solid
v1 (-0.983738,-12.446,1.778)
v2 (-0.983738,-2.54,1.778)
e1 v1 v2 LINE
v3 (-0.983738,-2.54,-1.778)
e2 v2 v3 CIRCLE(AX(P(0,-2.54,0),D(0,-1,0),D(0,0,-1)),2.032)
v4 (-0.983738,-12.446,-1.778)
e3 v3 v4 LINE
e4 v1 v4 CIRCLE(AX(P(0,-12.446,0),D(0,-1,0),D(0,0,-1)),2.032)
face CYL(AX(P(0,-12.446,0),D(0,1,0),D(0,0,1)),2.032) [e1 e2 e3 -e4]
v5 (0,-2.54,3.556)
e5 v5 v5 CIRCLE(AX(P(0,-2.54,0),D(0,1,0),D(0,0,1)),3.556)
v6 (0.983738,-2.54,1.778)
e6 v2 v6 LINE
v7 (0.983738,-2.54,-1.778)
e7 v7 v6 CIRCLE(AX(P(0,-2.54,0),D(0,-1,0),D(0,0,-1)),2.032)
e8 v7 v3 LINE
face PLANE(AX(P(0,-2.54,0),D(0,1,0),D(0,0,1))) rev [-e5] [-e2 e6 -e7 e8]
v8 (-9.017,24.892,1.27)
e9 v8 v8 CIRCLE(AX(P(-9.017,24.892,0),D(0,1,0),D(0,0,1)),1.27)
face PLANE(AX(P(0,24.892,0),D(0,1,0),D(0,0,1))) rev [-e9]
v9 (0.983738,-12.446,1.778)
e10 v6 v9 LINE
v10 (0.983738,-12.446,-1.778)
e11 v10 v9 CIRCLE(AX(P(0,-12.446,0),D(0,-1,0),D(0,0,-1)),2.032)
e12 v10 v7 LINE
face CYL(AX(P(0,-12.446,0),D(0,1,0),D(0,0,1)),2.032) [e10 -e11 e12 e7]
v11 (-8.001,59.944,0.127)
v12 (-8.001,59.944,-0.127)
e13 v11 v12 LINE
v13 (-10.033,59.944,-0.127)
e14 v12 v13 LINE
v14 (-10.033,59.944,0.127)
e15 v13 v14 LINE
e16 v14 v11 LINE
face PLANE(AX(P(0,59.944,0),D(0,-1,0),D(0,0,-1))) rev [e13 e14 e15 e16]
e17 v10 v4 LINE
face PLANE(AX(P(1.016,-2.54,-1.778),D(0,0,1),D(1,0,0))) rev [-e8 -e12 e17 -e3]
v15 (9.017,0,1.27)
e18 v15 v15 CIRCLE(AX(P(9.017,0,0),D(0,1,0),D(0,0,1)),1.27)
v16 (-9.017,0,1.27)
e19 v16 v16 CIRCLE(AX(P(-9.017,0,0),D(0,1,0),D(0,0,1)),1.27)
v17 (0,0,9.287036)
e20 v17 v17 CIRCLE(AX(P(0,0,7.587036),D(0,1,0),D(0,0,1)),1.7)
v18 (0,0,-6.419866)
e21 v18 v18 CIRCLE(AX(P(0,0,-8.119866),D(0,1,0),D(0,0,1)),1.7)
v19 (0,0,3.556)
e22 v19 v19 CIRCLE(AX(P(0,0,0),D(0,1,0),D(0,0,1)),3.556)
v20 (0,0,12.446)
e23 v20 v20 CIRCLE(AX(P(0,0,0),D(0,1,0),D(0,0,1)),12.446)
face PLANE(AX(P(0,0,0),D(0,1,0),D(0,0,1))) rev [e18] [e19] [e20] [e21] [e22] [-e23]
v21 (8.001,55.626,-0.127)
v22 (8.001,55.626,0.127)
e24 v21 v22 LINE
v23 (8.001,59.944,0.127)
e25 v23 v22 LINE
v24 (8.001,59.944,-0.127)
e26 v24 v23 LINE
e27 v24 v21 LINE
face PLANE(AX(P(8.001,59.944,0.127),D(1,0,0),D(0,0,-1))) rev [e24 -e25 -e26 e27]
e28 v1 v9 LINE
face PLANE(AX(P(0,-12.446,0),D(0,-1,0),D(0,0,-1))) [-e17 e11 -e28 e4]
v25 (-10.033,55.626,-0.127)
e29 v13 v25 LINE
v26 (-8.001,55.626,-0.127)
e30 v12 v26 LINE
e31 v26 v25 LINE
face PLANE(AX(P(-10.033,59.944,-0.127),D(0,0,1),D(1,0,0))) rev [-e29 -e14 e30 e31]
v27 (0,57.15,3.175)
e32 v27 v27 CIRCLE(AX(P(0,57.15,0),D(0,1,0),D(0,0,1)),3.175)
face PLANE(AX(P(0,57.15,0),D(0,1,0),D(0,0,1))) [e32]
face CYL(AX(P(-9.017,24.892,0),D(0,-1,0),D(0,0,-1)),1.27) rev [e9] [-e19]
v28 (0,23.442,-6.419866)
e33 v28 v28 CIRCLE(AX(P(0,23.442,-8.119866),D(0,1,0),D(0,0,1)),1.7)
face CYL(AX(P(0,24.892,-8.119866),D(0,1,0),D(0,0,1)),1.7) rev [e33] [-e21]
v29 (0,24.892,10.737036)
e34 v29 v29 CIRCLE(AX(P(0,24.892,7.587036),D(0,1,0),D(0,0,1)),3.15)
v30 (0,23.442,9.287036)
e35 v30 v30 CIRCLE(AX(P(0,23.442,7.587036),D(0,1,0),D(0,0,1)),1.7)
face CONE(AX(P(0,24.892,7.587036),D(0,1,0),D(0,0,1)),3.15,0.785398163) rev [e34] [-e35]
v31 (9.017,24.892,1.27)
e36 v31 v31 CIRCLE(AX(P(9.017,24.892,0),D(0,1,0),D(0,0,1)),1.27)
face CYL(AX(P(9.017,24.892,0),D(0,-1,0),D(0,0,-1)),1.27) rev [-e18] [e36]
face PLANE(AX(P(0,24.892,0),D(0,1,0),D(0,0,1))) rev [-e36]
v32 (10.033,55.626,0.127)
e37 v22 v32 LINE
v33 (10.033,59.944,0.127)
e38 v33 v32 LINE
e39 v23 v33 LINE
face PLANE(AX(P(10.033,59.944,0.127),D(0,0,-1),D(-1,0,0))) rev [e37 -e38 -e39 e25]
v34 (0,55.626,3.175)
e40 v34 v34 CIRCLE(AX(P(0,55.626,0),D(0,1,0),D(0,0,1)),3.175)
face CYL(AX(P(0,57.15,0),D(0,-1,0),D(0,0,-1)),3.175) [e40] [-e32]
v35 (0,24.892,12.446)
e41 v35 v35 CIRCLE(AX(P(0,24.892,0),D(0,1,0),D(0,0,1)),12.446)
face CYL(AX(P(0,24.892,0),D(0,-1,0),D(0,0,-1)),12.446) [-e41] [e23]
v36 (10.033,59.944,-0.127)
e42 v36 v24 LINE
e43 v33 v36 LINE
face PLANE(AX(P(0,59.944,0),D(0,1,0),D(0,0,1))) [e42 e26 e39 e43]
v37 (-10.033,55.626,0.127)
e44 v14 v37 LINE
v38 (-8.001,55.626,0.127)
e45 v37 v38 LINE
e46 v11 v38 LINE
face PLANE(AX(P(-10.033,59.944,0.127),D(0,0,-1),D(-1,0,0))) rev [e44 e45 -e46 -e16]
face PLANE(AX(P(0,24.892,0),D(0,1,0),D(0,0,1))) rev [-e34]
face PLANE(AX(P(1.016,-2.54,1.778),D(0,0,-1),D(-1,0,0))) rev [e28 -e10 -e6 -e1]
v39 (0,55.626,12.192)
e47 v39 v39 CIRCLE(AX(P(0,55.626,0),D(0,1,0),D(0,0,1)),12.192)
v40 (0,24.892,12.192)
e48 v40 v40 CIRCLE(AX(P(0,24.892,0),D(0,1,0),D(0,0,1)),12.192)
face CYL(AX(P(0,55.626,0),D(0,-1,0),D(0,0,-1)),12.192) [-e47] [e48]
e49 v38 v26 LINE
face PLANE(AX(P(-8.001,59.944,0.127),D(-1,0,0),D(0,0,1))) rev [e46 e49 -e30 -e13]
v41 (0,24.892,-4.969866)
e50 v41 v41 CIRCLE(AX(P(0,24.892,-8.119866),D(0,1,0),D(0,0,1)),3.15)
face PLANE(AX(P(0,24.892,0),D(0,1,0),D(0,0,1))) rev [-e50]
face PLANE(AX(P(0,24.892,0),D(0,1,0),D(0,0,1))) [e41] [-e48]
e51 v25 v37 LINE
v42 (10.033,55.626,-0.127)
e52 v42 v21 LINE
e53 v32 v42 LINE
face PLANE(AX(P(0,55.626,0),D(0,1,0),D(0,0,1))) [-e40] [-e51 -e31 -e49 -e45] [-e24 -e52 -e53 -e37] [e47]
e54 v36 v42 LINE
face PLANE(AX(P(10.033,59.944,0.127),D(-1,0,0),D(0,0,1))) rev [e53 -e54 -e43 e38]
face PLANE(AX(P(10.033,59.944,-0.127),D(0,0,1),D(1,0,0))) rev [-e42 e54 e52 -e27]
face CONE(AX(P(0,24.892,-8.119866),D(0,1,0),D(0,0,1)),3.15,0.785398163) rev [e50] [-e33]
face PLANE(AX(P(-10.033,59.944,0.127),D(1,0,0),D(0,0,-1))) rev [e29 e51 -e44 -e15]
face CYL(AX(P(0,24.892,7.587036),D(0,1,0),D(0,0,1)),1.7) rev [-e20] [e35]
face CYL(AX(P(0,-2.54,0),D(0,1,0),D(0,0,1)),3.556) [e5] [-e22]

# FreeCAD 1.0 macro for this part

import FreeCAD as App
import Part
import Sketcher

V = App.Vector
Q = App.Units.Quantity

doc = App.newDocument("Part")
body = doc.addObject("PartDesign::Body", "Body")

sketch1 = body.newObject("Sketcher::SketchObject", "Sketch")
sketch1.AttachmentSupport = (doc.getObject("XZ_Plane"), [""])
sketch1.MapMode = "FlatFace"
sketch1.addGeometry(Part.Circle(V(0, 0, 0), V(0, 0, 1), 12.446), False)
sketch1.addGeometry(Part.Circle(V(-9.017, 0, 0), V(0, 0, 1), 1.27), False)
sketch1.addGeometry(Part.Circle(V(9.017, 0, 0), V(0, 0, 1), 1.27), False)
sketch1.addConstraint(Sketcher.Constraint("Coincident", 0, 3, -1, 1))
sketch1.addConstraint(Sketcher.Constraint("Equal", 1, 2))
sketch1.addConstraint(Sketcher.Constraint("Symmetric", 1, 3, 2, 3, -1, 1))
sketch1.addConstraint(Sketcher.Constraint("PointOnObject", 1, 3, -1))
sketch1.addConstraint(Sketcher.Constraint("Diameter", 1, Q("0.1 in")))
sketch1.addConstraint(Sketcher.Constraint("Diameter", 0, Q("0.98 in")))
sketch1.addConstraint(Sketcher.Constraint("DistanceX", 1, 3, 2, 3, Q("0.71 in")))
pad1 = body.newObject("PartDesign::Pad", "Pad")
pad1.Profile = sketch1
pad1.Length = Q("0.98 in")
pad1.Reversed = True

sketch2 = body.newObject("Sketcher::SketchObject", "Sketch001")
sketch2.AttachmentSupport = (doc.getObject("XZ_Plane"), [""])
sketch2.MapMode = "FlatFace"
sketch2.AttachmentOffset = App.Placement(V(0, 0, -0.98 * 25.4), App.Rotation())
sketch2.addGeometry(Part.Circle(V(0, -8.119866, 0), V(0, 0, 1), 1.7), False)
sketch2.addGeometry(Part.Circle(V(0, 7.587036, 0), V(0, 0, 1), 1.7), False)
sketch2.addConstraint(Sketcher.Constraint("Equal", 0, 1))
sketch2.addConstraint(Sketcher.Constraint("PointOnObject", 0, 3, -2))
sketch2.addConstraint(Sketcher.Constraint("PointOnObject", 1, 3, -2))
sketch2.addConstraint(Sketcher.Constraint("Diameter", 0, Q("3.4 mm")))
sketch2.addConstraint(Sketcher.Constraint("DistanceY", 0, 3, -1, 1, Q("8.119866 mm")))
sketch2.addConstraint(Sketcher.Constraint("DistanceY", -1, 1, 1, 3, Q("7.587036 mm")))
doc.recompute()
hole = body.newObject("PartDesign::Hole", "Hole")
hole.Profile = sketch2
hole.ThreadType = "None"
hole.Diameter = 3.4
hole.DepthType = "ThroughAll"
hole.HoleCutType = "Countersink"
hole.HoleCutDiameter = 6.3
hole.HoleCutCountersinkAngle = 90
hole.Reversed = True

sketch3 = body.newObject("Sketcher::SketchObject", "Sketch002")
sketch3.AttachmentSupport = (doc.getObject("XZ_Plane"), [""])
sketch3.MapMode = "FlatFace"
sketch3.AttachmentOffset = App.Placement(V(0, 0, -0.98 * 25.4), App.Rotation())
sketch3.addGeometry(Part.Circle(V(0, 0, 0), V(0, 0, 1), 12.192), False)
sketch3.addConstraint(Sketcher.Constraint("Coincident", 0, 3, -1, 1))
sketch3.addConstraint(Sketcher.Constraint("Diameter", 0, Q("0.96 in")))
pad2 = body.newObject("PartDesign::Pad", "Pad001")
pad2.Profile = sketch3
pad2.Length = Q("1.21 in")
pad2.Reversed = True

sketch4 = body.newObject("Sketcher::SketchObject", "Sketch003")
sketch4.AttachmentSupport = (doc.getObject("XZ_Plane"), [""])
sketch4.MapMode = "FlatFace"
sketch4.addGeometry(Part.Circle(V(0, 0, 0), V(0, 0, 1), 3.556), False)
sketch4.addConstraint(Sketcher.Constraint("Coincident", 0, 3, -1, 1))
sketch4.addConstraint(Sketcher.Constraint("Diameter", 0, Q("0.28 in")))
pad3 = body.newObject("PartDesign::Pad", "Pad002")
pad3.Profile = sketch4
pad3.Length = Q("0.1 in")

sketch5 = body.newObject("Sketcher::SketchObject", "Sketch004")
sketch5.AttachmentSupport = (doc.getObject("XZ_Plane"), [""])
sketch5.MapMode = "FlatFace"
sketch5.AttachmentOffset = App.Placement(V(0, 0, 0.1 * 25.4), App.Rotation())
sketch5.addGeometry(Part.Circle(V(0, 0, 0), V(0, 0, 1), 2.032), False)
sketch5.addConstraint(Sketcher.Constraint("Coincident", 0, 3, -1, 1))
sketch5.addConstraint(Sketcher.Constraint("Diameter", 0, Q("0.16 in")))
pad4 = body.newObject("PartDesign::Pad", "Pad003")
pad4.Profile = sketch5
pad4.Length = Q("0.39 in")

sketch6 = body.newObject("Sketcher::SketchObject", "Sketch005")
sketch6.AttachmentSupport = (doc.getObject("XZ_Plane"), [""])
sketch6.MapMode = "FlatFace"
sketch6.AttachmentOffset = App.Placement(V(0, 0, 0.49 * 25.4), App.Rotation())
sketch6.addGeometry(Part.LineSegment(V(1.016, 1.778, 0), V(1.016, 2.032, 0)), False)
sketch6.addGeometry(Part.LineSegment(V(1.016, 2.032, 0), V(-1.016, 2.032, 0)), False)
sketch6.addGeometry(Part.LineSegment(V(-1.016, 2.032, 0), V(-1.016, 1.778, 0)), False)
sketch6.addGeometry(Part.LineSegment(V(-1.016, 1.778, 0), V(1.016, 1.778, 0)), False)
sketch6.addGeometry(Part.LineSegment(V(1.016, -2.032, 0), V(1.016, -1.778, 0)), False)
sketch6.addGeometry(Part.LineSegment(V(1.016, -1.778, 0), V(-1.016, -1.778, 0)), False)
sketch6.addGeometry(Part.LineSegment(V(-1.016, -1.778, 0), V(-1.016, -2.032, 0)), False)
sketch6.addGeometry(Part.LineSegment(V(-1.016, -2.032, 0), V(1.016, -2.032, 0)), False)
sketch6.addConstraint(Sketcher.Constraint("Coincident", 0, 2, 1, 1))
sketch6.addConstraint(Sketcher.Constraint("Coincident", 1, 2, 2, 1))
sketch6.addConstraint(Sketcher.Constraint("Coincident", 2, 2, 3, 1))
sketch6.addConstraint(Sketcher.Constraint("Coincident", 3, 2, 0, 1))
sketch6.addConstraint(Sketcher.Constraint("Coincident", 4, 2, 5, 1))
sketch6.addConstraint(Sketcher.Constraint("Coincident", 5, 2, 6, 1))
sketch6.addConstraint(Sketcher.Constraint("Coincident", 6, 2, 7, 1))
sketch6.addConstraint(Sketcher.Constraint("Coincident", 7, 2, 4, 1))
sketch6.addConstraint(Sketcher.Constraint("Vertical", 0))
sketch6.addConstraint(Sketcher.Constraint("Horizontal", 1))
sketch6.addConstraint(Sketcher.Constraint("Vertical", 2))
sketch6.addConstraint(Sketcher.Constraint("Horizontal", 3))
sketch6.addConstraint(Sketcher.Constraint("Vertical", 4))
sketch6.addConstraint(Sketcher.Constraint("Horizontal", 5))
sketch6.addConstraint(Sketcher.Constraint("Vertical", 6))
sketch6.addConstraint(Sketcher.Constraint("Horizontal", 7))
sketch6.addConstraint(Sketcher.Constraint("Symmetric", 2, 2, 4, 2, -1, 1))
sketch6.addConstraint(Sketcher.Constraint("Symmetric", 0, 2, 6, 2, -1, 1))
sketch6.addConstraint(Sketcher.Constraint("Vertical", 3, 2, 4, 2))
sketch6.addConstraint(Sketcher.Constraint("DistanceX", 1, 2, 1, 1, Q("0.08 in")))
sketch6.addConstraint(Sketcher.Constraint("DistanceY", 0, 1, 0, 2, Q("0.01 in")))
sketch6.addConstraint(Sketcher.Constraint("DistanceY", -1, 1, 0, 2, Q("0.08 in")))
pocket1 = body.newObject("PartDesign::Pocket", "Pocket")
pocket1.Profile = sketch6
pocket1.Length = Q("0.39 in")

sketch7 = body.newObject("Sketcher::SketchObject", "Sketch006")
sketch7.AttachmentSupport = (doc.getObject("XZ_Plane"), [""])
sketch7.MapMode = "FlatFace"
sketch7.AttachmentOffset = App.Placement(V(0, 0, -2.19 * 25.4), App.Rotation())
sketch7.addGeometry(Part.Circle(V(0, 0, 0), V(0, 0, 1), 3.175), False)
sketch7.addConstraint(Sketcher.Constraint("Coincident", 0, 3, -1, 1))
sketch7.addConstraint(Sketcher.Constraint("Diameter", 0, Q("0.25 in")))
pad5 = body.newObject("PartDesign::Pad", "Pad004")
pad5.Profile = sketch7
pad5.Length = Q("0.06 in")
pad5.Reversed = True

sketch8 = body.newObject("Sketcher::SketchObject", "Sketch007")
sketch8.AttachmentSupport = (doc.getObject("XZ_Plane"), [""])
sketch8.MapMode = "FlatFace"
sketch8.AttachmentOffset = App.Placement(V(0, 0, -2.19 * 25.4), App.Rotation())
sketch8.addGeometry(Part.LineSegment(V(-10.033, -0.127, 0), V(-10.033, 0.127, 0)), False)
sketch8.addGeometry(Part.LineSegment(V(-10.033, 0.127, 0), V(-8.001, 0.127, 0)), False)
sketch8.addGeometry(Part.LineSegment(V(-8.001, 0.127, 0), V(-8.001, -0.127, 0)), False)
sketch8.addGeometry(Part.LineSegment(V(-8.001, -0.127, 0), V(-10.033, -0.127, 0)), False)
sketch8.addGeometry(Part.LineSegment(V(8.001, -0.127, 0), V(8.001, 0.127, 0)), False)
sketch8.addGeometry(Part.LineSegment(V(8.001, 0.127, 0), V(10.033, 0.127, 0)), False)
sketch8.addGeometry(Part.LineSegment(V(10.033, 0.127, 0), V(10.033, -0.127, 0)), False)
sketch8.addGeometry(Part.LineSegment(V(10.033, -0.127, 0), V(8.001, -0.127, 0)), False)
sketch8.addConstraint(Sketcher.Constraint("Coincident", 0, 2, 1, 1))
sketch8.addConstraint(Sketcher.Constraint("Coincident", 1, 2, 2, 1))
sketch8.addConstraint(Sketcher.Constraint("Coincident", 2, 2, 3, 1))
sketch8.addConstraint(Sketcher.Constraint("Coincident", 3, 2, 0, 1))
sketch8.addConstraint(Sketcher.Constraint("Coincident", 4, 2, 5, 1))
sketch8.addConstraint(Sketcher.Constraint("Coincident", 5, 2, 6, 1))
sketch8.addConstraint(Sketcher.Constraint("Coincident", 6, 2, 7, 1))
sketch8.addConstraint(Sketcher.Constraint("Coincident", 7, 2, 4, 1))
sketch8.addConstraint(Sketcher.Constraint("Vertical", 0))
sketch8.addConstraint(Sketcher.Constraint("Horizontal", 1))
sketch8.addConstraint(Sketcher.Constraint("Vertical", 2))
sketch8.addConstraint(Sketcher.Constraint("Horizontal", 3))
sketch8.addConstraint(Sketcher.Constraint("Vertical", 4))
sketch8.addConstraint(Sketcher.Constraint("Horizontal", 5))
sketch8.addConstraint(Sketcher.Constraint("Vertical", 6))
sketch8.addConstraint(Sketcher.Constraint("Horizontal", 7))
sketch8.addConstraint(Sketcher.Constraint("Symmetric", 2, 2, 4, 2, -1, 1))
sketch8.addConstraint(Sketcher.Constraint("Symmetric", 0, 2, 6, 2, -1, 1))
sketch8.addConstraint(Sketcher.Constraint("Horizontal", 1, 2, 4, 2))
sketch8.addConstraint(Sketcher.Constraint("DistanceX", 1, 1, 1, 2, Q("0.08 in")))
sketch8.addConstraint(Sketcher.Constraint("DistanceY", 0, 1, 0, 2, Q("0.01 in")))
sketch8.addConstraint(Sketcher.Constraint("DistanceX", 1, 2, 4, 2, Q("0.63 in")))
pad6 = body.newObject("PartDesign::Pad", "Pad005")
pad6.Profile = sketch8
pad6.Length = Q("0.17 in")
pad6.Reversed = True

doc.recompute()
